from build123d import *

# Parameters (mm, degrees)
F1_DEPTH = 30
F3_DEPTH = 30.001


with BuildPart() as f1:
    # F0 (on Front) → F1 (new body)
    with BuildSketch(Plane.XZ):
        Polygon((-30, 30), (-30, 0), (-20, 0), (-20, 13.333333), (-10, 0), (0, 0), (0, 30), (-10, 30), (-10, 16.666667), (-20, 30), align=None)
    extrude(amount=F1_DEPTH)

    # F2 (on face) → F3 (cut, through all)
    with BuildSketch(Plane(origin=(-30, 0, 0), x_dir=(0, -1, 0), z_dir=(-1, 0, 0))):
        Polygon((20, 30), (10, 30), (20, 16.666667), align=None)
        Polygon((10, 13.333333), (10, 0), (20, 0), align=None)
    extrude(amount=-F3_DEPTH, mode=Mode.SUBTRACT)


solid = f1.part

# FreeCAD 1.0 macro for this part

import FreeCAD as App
import Part
import Sketcher

V = App.Vector
Q = App.Units.Quantity


def add_polygon(sketch, points):
    """Adds a closed chain of lines whose ends are joined by coincident constraints."""
    first, n = sketch.GeometryCount, len(points)
    for a, b in zip(points, points[1:] + points[:1]):
        sketch.addGeometry(Part.LineSegment(App.Vector(*a, 0), App.Vector(*b, 0)), False)
    for i in range(n):
        sketch.addConstraint(Sketcher.Constraint("Coincident", first + i, 2, first + (i + 1) % n, 1))

doc = App.newDocument("Part")
body = doc.addObject("PartDesign::Body", "Body")

sketch1 = doc.addObject("Sketcher::SketchObject", "Sketch")
body.addObject(sketch1)
sketch1.AttachmentSupport = (doc.XZ_Plane, [""])
sketch1.MapMode = "FlatFace"
add_polygon(sketch1, [(-30, 30), (-30, 0), (-20, 0), (-20, 13), (-10, 0), (0, 0), (0, 30), (-10, 30), (-10, 17), (-20, 30)])
sketch1.addConstraint(Sketcher.Constraint("Vertical", 0))
sketch1.addConstraint(Sketcher.Constraint("Horizontal", 1))
sketch1.addConstraint(Sketcher.Constraint("Vertical", 2))
sketch1.addConstraint(Sketcher.Constraint("Horizontal", 4))
sketch1.addConstraint(Sketcher.Constraint("Vertical", 5))
sketch1.addConstraint(Sketcher.Constraint("Horizontal", 6))
sketch1.addConstraint(Sketcher.Constraint("Vertical", 7))
sketch1.addConstraint(Sketcher.Constraint("Horizontal", 9))
sketch1.addConstraint(Sketcher.Constraint("Coincident", 4, 2, -1, 1))
sketch1.addConstraint(Sketcher.Constraint("PointOnObject", 0, 2, -1))
sketch1.addConstraint(Sketcher.Constraint("Parallel", 3, 8))
sketch1.addConstraint(Sketcher.Constraint("Horizontal", 6, 2, 8, 2))
sketch1.addConstraint(Sketcher.Constraint("Vertical", 3, 2, 6, 2))
sketch1.addConstraint(Sketcher.Constraint("Vertical", 2, 2, 8, 2))
sketch1.addConstraint(Sketcher.Constraint("Equal", 1, 4))
sketch1.addConstraint(Sketcher.Constraint("DistanceX", 1, 1, 1, 2, Q("10 mm")))
sketch1.addConstraint(Sketcher.Constraint("DistanceY", 0, 2, 0, 1, Q("30 mm")))
sketch1.addConstraint(Sketcher.Constraint("DistanceX", 0, 2, -1, 1, Q("30 mm")))
sketch1.addConstraint(Sketcher.Constraint("DistanceY", 2, 1, 2, 2, Q("13.333333 mm")))
pad1 = doc.addObject("PartDesign::Pad", "Pad")
body.addObject(pad1)
pad1.Profile = sketch1
pad1.Length = 30

sketch2 = doc.addObject("Sketcher::SketchObject", "Sketch001")
body.addObject(sketch2)
sketch2.AttachmentSupport = (doc.YZ_Plane, [""])
sketch2.MapMode = "FlatFace"
sketch2.AttachmentOffset = App.Placement(V(0, 0, -30), App.Rotation())
add_polygon(sketch2, [(-20, 30), (-10, 30), (-20, 17)])
add_polygon(sketch2, [(-10, 13), (-10, 0), (-20, 0)])
sketch2.addConstraint(Sketcher.Constraint("Horizontal", 0))
sketch2.addConstraint(Sketcher.Constraint("Vertical", 2))
sketch2.addConstraint(Sketcher.Constraint("Vertical", 3))
sketch2.addConstraint(Sketcher.Constraint("Horizontal", 4))
sketch2.addConstraint(Sketcher.Constraint("PointOnObject", 3, 2, -1))
sketch2.addConstraint(Sketcher.Constraint("Parallel", 1, 5))
sketch2.addConstraint(Sketcher.Constraint("Vertical", 0, 2, 3, 2))
sketch2.addConstraint(Sketcher.Constraint("Vertical", 2, 2, 4, 2))
sketch2.addConstraint(Sketcher.Constraint("DistanceX", 0, 1, 0, 2, Q("10 mm")))
sketch2.addConstraint(Sketcher.Constraint("DistanceX", 0, 2, -1, 1, Q("10 mm")))
sketch2.addConstraint(Sketcher.Constraint("DistanceY", -1, 1, 0, 2, Q("30 mm")))
sketch2.addConstraint(Sketcher.Constraint("DistanceY", 2, 1, 2, 2, Q("13.333333 mm")))
pocket1 = doc.addObject("PartDesign::Pocket", "Pocket")
body.addObject(pocket1)
pocket1.Profile = sketch2
pocket1.Type = "ThroughAll"
pocket1.Reversed = True

doc.recompute()
